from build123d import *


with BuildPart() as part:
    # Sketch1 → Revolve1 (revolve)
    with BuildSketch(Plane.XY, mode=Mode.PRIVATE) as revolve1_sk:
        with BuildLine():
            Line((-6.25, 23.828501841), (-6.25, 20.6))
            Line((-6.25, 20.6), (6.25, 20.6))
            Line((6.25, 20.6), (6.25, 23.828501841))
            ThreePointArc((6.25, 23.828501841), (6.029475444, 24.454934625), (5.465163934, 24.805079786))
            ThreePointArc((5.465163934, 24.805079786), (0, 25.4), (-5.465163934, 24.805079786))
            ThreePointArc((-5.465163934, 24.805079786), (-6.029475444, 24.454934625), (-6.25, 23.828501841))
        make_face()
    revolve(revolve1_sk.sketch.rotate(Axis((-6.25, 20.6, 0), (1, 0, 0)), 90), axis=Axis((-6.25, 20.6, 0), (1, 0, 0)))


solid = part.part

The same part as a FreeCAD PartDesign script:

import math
import FreeCAD as App
import Part
import Sketcher
from FreeCAD import Vector

doc = App.newDocument("Part")
body = doc.addObject("PartDesign::Body", "Body")

# Sketch on XY plane
sketch1 = body.newObject("Sketcher::SketchObject", "Sketch")
sketch1.AttachmentSupport = (doc.getObject("XY_Plane"), [""])
sketch1.MapMode = "FlatFace"
sketch1.addGeometry([
    Part.LineSegment(Vector(-6.2, 23.8, 0), Vector(-6.2, 20.6, 0)),  # 0
    Part.LineSegment(Vector(-6.2, 20.6, 0), Vector(6.2, 20.6, 0)),  # 1
    Part.LineSegment(Vector(6.2, 20.6, 0), Vector(6.2, 23.8, 0)),  # 2
    Part.ArcOfCircle(Part.Circle(Vector(5.2, 23.8, 0), Vector(0, 0, 1), 1), math.radians(0), math.radians(78)),  # 3
    Part.ArcOfCircle(Part.Circle(Vector(0, 0, 0), Vector(0, 0, 1), 25.4), math.radians(78), math.radians(102)),  # 4
    Part.ArcOfCircle(Part.Circle(Vector(-5.2, 23.8, 0), Vector(0, 0, 1), 1), math.radians(102), math.radians(180)),  # 5
], False)
sketch1.addGeometry(Part.LineSegment(Vector(-6.2, 20.6, 0), Vector(6.2, 20.6, 0)), True)  # axis
sketch1.addConstraint([
    Sketcher.Constraint("Coincident", 0, 2, 1, 1),
    Sketcher.Constraint("Coincident", 1, 2, 2, 1),
    Sketcher.Constraint("Tangent", 2, 2, 3, 1),
    Sketcher.Constraint("Tangent", 3, 2, 4, 1),
    Sketcher.Constraint("Tangent", 4, 2, 5, 1),
    Sketcher.Constraint("Tangent", 5, 2, 0, 1),
    Sketcher.Constraint("Vertical", 0),
    Sketcher.Constraint("Horizontal", 1),
    Sketcher.Constraint("Vertical", 2),
    Sketcher.Constraint("Horizontal", 6),
    Sketcher.Constraint("Coincident", 4, 3, -1, 1),
    Sketcher.Constraint("Coincident", 6, 1, 0, 2),
    Sketcher.Constraint("Equal", 3, 5),
    Sketcher.Constraint("Horizontal", 3, 3, 5, 3),
    Sketcher.Constraint("Vertical", 2, 2, 6, 2),
    Sketcher.Constraint("Radius", 3, 1.0),
    Sketcher.Constraint("Radius", 4, 25.4),
    Sketcher.Constraint("DistanceX", 1, 1, 1, 2, 12.5),
    Sketcher.Constraint("DistanceY", -1, 1, 0, 2, 20.6),
])
revolution = body.newObject("PartDesign::Revolution", "Revolution")
revolution.Profile = sketch1
revolution.ReferenceAxis = (sketch1, ["Axis0"])
revolution.Angle = 360

doc.recompute()
